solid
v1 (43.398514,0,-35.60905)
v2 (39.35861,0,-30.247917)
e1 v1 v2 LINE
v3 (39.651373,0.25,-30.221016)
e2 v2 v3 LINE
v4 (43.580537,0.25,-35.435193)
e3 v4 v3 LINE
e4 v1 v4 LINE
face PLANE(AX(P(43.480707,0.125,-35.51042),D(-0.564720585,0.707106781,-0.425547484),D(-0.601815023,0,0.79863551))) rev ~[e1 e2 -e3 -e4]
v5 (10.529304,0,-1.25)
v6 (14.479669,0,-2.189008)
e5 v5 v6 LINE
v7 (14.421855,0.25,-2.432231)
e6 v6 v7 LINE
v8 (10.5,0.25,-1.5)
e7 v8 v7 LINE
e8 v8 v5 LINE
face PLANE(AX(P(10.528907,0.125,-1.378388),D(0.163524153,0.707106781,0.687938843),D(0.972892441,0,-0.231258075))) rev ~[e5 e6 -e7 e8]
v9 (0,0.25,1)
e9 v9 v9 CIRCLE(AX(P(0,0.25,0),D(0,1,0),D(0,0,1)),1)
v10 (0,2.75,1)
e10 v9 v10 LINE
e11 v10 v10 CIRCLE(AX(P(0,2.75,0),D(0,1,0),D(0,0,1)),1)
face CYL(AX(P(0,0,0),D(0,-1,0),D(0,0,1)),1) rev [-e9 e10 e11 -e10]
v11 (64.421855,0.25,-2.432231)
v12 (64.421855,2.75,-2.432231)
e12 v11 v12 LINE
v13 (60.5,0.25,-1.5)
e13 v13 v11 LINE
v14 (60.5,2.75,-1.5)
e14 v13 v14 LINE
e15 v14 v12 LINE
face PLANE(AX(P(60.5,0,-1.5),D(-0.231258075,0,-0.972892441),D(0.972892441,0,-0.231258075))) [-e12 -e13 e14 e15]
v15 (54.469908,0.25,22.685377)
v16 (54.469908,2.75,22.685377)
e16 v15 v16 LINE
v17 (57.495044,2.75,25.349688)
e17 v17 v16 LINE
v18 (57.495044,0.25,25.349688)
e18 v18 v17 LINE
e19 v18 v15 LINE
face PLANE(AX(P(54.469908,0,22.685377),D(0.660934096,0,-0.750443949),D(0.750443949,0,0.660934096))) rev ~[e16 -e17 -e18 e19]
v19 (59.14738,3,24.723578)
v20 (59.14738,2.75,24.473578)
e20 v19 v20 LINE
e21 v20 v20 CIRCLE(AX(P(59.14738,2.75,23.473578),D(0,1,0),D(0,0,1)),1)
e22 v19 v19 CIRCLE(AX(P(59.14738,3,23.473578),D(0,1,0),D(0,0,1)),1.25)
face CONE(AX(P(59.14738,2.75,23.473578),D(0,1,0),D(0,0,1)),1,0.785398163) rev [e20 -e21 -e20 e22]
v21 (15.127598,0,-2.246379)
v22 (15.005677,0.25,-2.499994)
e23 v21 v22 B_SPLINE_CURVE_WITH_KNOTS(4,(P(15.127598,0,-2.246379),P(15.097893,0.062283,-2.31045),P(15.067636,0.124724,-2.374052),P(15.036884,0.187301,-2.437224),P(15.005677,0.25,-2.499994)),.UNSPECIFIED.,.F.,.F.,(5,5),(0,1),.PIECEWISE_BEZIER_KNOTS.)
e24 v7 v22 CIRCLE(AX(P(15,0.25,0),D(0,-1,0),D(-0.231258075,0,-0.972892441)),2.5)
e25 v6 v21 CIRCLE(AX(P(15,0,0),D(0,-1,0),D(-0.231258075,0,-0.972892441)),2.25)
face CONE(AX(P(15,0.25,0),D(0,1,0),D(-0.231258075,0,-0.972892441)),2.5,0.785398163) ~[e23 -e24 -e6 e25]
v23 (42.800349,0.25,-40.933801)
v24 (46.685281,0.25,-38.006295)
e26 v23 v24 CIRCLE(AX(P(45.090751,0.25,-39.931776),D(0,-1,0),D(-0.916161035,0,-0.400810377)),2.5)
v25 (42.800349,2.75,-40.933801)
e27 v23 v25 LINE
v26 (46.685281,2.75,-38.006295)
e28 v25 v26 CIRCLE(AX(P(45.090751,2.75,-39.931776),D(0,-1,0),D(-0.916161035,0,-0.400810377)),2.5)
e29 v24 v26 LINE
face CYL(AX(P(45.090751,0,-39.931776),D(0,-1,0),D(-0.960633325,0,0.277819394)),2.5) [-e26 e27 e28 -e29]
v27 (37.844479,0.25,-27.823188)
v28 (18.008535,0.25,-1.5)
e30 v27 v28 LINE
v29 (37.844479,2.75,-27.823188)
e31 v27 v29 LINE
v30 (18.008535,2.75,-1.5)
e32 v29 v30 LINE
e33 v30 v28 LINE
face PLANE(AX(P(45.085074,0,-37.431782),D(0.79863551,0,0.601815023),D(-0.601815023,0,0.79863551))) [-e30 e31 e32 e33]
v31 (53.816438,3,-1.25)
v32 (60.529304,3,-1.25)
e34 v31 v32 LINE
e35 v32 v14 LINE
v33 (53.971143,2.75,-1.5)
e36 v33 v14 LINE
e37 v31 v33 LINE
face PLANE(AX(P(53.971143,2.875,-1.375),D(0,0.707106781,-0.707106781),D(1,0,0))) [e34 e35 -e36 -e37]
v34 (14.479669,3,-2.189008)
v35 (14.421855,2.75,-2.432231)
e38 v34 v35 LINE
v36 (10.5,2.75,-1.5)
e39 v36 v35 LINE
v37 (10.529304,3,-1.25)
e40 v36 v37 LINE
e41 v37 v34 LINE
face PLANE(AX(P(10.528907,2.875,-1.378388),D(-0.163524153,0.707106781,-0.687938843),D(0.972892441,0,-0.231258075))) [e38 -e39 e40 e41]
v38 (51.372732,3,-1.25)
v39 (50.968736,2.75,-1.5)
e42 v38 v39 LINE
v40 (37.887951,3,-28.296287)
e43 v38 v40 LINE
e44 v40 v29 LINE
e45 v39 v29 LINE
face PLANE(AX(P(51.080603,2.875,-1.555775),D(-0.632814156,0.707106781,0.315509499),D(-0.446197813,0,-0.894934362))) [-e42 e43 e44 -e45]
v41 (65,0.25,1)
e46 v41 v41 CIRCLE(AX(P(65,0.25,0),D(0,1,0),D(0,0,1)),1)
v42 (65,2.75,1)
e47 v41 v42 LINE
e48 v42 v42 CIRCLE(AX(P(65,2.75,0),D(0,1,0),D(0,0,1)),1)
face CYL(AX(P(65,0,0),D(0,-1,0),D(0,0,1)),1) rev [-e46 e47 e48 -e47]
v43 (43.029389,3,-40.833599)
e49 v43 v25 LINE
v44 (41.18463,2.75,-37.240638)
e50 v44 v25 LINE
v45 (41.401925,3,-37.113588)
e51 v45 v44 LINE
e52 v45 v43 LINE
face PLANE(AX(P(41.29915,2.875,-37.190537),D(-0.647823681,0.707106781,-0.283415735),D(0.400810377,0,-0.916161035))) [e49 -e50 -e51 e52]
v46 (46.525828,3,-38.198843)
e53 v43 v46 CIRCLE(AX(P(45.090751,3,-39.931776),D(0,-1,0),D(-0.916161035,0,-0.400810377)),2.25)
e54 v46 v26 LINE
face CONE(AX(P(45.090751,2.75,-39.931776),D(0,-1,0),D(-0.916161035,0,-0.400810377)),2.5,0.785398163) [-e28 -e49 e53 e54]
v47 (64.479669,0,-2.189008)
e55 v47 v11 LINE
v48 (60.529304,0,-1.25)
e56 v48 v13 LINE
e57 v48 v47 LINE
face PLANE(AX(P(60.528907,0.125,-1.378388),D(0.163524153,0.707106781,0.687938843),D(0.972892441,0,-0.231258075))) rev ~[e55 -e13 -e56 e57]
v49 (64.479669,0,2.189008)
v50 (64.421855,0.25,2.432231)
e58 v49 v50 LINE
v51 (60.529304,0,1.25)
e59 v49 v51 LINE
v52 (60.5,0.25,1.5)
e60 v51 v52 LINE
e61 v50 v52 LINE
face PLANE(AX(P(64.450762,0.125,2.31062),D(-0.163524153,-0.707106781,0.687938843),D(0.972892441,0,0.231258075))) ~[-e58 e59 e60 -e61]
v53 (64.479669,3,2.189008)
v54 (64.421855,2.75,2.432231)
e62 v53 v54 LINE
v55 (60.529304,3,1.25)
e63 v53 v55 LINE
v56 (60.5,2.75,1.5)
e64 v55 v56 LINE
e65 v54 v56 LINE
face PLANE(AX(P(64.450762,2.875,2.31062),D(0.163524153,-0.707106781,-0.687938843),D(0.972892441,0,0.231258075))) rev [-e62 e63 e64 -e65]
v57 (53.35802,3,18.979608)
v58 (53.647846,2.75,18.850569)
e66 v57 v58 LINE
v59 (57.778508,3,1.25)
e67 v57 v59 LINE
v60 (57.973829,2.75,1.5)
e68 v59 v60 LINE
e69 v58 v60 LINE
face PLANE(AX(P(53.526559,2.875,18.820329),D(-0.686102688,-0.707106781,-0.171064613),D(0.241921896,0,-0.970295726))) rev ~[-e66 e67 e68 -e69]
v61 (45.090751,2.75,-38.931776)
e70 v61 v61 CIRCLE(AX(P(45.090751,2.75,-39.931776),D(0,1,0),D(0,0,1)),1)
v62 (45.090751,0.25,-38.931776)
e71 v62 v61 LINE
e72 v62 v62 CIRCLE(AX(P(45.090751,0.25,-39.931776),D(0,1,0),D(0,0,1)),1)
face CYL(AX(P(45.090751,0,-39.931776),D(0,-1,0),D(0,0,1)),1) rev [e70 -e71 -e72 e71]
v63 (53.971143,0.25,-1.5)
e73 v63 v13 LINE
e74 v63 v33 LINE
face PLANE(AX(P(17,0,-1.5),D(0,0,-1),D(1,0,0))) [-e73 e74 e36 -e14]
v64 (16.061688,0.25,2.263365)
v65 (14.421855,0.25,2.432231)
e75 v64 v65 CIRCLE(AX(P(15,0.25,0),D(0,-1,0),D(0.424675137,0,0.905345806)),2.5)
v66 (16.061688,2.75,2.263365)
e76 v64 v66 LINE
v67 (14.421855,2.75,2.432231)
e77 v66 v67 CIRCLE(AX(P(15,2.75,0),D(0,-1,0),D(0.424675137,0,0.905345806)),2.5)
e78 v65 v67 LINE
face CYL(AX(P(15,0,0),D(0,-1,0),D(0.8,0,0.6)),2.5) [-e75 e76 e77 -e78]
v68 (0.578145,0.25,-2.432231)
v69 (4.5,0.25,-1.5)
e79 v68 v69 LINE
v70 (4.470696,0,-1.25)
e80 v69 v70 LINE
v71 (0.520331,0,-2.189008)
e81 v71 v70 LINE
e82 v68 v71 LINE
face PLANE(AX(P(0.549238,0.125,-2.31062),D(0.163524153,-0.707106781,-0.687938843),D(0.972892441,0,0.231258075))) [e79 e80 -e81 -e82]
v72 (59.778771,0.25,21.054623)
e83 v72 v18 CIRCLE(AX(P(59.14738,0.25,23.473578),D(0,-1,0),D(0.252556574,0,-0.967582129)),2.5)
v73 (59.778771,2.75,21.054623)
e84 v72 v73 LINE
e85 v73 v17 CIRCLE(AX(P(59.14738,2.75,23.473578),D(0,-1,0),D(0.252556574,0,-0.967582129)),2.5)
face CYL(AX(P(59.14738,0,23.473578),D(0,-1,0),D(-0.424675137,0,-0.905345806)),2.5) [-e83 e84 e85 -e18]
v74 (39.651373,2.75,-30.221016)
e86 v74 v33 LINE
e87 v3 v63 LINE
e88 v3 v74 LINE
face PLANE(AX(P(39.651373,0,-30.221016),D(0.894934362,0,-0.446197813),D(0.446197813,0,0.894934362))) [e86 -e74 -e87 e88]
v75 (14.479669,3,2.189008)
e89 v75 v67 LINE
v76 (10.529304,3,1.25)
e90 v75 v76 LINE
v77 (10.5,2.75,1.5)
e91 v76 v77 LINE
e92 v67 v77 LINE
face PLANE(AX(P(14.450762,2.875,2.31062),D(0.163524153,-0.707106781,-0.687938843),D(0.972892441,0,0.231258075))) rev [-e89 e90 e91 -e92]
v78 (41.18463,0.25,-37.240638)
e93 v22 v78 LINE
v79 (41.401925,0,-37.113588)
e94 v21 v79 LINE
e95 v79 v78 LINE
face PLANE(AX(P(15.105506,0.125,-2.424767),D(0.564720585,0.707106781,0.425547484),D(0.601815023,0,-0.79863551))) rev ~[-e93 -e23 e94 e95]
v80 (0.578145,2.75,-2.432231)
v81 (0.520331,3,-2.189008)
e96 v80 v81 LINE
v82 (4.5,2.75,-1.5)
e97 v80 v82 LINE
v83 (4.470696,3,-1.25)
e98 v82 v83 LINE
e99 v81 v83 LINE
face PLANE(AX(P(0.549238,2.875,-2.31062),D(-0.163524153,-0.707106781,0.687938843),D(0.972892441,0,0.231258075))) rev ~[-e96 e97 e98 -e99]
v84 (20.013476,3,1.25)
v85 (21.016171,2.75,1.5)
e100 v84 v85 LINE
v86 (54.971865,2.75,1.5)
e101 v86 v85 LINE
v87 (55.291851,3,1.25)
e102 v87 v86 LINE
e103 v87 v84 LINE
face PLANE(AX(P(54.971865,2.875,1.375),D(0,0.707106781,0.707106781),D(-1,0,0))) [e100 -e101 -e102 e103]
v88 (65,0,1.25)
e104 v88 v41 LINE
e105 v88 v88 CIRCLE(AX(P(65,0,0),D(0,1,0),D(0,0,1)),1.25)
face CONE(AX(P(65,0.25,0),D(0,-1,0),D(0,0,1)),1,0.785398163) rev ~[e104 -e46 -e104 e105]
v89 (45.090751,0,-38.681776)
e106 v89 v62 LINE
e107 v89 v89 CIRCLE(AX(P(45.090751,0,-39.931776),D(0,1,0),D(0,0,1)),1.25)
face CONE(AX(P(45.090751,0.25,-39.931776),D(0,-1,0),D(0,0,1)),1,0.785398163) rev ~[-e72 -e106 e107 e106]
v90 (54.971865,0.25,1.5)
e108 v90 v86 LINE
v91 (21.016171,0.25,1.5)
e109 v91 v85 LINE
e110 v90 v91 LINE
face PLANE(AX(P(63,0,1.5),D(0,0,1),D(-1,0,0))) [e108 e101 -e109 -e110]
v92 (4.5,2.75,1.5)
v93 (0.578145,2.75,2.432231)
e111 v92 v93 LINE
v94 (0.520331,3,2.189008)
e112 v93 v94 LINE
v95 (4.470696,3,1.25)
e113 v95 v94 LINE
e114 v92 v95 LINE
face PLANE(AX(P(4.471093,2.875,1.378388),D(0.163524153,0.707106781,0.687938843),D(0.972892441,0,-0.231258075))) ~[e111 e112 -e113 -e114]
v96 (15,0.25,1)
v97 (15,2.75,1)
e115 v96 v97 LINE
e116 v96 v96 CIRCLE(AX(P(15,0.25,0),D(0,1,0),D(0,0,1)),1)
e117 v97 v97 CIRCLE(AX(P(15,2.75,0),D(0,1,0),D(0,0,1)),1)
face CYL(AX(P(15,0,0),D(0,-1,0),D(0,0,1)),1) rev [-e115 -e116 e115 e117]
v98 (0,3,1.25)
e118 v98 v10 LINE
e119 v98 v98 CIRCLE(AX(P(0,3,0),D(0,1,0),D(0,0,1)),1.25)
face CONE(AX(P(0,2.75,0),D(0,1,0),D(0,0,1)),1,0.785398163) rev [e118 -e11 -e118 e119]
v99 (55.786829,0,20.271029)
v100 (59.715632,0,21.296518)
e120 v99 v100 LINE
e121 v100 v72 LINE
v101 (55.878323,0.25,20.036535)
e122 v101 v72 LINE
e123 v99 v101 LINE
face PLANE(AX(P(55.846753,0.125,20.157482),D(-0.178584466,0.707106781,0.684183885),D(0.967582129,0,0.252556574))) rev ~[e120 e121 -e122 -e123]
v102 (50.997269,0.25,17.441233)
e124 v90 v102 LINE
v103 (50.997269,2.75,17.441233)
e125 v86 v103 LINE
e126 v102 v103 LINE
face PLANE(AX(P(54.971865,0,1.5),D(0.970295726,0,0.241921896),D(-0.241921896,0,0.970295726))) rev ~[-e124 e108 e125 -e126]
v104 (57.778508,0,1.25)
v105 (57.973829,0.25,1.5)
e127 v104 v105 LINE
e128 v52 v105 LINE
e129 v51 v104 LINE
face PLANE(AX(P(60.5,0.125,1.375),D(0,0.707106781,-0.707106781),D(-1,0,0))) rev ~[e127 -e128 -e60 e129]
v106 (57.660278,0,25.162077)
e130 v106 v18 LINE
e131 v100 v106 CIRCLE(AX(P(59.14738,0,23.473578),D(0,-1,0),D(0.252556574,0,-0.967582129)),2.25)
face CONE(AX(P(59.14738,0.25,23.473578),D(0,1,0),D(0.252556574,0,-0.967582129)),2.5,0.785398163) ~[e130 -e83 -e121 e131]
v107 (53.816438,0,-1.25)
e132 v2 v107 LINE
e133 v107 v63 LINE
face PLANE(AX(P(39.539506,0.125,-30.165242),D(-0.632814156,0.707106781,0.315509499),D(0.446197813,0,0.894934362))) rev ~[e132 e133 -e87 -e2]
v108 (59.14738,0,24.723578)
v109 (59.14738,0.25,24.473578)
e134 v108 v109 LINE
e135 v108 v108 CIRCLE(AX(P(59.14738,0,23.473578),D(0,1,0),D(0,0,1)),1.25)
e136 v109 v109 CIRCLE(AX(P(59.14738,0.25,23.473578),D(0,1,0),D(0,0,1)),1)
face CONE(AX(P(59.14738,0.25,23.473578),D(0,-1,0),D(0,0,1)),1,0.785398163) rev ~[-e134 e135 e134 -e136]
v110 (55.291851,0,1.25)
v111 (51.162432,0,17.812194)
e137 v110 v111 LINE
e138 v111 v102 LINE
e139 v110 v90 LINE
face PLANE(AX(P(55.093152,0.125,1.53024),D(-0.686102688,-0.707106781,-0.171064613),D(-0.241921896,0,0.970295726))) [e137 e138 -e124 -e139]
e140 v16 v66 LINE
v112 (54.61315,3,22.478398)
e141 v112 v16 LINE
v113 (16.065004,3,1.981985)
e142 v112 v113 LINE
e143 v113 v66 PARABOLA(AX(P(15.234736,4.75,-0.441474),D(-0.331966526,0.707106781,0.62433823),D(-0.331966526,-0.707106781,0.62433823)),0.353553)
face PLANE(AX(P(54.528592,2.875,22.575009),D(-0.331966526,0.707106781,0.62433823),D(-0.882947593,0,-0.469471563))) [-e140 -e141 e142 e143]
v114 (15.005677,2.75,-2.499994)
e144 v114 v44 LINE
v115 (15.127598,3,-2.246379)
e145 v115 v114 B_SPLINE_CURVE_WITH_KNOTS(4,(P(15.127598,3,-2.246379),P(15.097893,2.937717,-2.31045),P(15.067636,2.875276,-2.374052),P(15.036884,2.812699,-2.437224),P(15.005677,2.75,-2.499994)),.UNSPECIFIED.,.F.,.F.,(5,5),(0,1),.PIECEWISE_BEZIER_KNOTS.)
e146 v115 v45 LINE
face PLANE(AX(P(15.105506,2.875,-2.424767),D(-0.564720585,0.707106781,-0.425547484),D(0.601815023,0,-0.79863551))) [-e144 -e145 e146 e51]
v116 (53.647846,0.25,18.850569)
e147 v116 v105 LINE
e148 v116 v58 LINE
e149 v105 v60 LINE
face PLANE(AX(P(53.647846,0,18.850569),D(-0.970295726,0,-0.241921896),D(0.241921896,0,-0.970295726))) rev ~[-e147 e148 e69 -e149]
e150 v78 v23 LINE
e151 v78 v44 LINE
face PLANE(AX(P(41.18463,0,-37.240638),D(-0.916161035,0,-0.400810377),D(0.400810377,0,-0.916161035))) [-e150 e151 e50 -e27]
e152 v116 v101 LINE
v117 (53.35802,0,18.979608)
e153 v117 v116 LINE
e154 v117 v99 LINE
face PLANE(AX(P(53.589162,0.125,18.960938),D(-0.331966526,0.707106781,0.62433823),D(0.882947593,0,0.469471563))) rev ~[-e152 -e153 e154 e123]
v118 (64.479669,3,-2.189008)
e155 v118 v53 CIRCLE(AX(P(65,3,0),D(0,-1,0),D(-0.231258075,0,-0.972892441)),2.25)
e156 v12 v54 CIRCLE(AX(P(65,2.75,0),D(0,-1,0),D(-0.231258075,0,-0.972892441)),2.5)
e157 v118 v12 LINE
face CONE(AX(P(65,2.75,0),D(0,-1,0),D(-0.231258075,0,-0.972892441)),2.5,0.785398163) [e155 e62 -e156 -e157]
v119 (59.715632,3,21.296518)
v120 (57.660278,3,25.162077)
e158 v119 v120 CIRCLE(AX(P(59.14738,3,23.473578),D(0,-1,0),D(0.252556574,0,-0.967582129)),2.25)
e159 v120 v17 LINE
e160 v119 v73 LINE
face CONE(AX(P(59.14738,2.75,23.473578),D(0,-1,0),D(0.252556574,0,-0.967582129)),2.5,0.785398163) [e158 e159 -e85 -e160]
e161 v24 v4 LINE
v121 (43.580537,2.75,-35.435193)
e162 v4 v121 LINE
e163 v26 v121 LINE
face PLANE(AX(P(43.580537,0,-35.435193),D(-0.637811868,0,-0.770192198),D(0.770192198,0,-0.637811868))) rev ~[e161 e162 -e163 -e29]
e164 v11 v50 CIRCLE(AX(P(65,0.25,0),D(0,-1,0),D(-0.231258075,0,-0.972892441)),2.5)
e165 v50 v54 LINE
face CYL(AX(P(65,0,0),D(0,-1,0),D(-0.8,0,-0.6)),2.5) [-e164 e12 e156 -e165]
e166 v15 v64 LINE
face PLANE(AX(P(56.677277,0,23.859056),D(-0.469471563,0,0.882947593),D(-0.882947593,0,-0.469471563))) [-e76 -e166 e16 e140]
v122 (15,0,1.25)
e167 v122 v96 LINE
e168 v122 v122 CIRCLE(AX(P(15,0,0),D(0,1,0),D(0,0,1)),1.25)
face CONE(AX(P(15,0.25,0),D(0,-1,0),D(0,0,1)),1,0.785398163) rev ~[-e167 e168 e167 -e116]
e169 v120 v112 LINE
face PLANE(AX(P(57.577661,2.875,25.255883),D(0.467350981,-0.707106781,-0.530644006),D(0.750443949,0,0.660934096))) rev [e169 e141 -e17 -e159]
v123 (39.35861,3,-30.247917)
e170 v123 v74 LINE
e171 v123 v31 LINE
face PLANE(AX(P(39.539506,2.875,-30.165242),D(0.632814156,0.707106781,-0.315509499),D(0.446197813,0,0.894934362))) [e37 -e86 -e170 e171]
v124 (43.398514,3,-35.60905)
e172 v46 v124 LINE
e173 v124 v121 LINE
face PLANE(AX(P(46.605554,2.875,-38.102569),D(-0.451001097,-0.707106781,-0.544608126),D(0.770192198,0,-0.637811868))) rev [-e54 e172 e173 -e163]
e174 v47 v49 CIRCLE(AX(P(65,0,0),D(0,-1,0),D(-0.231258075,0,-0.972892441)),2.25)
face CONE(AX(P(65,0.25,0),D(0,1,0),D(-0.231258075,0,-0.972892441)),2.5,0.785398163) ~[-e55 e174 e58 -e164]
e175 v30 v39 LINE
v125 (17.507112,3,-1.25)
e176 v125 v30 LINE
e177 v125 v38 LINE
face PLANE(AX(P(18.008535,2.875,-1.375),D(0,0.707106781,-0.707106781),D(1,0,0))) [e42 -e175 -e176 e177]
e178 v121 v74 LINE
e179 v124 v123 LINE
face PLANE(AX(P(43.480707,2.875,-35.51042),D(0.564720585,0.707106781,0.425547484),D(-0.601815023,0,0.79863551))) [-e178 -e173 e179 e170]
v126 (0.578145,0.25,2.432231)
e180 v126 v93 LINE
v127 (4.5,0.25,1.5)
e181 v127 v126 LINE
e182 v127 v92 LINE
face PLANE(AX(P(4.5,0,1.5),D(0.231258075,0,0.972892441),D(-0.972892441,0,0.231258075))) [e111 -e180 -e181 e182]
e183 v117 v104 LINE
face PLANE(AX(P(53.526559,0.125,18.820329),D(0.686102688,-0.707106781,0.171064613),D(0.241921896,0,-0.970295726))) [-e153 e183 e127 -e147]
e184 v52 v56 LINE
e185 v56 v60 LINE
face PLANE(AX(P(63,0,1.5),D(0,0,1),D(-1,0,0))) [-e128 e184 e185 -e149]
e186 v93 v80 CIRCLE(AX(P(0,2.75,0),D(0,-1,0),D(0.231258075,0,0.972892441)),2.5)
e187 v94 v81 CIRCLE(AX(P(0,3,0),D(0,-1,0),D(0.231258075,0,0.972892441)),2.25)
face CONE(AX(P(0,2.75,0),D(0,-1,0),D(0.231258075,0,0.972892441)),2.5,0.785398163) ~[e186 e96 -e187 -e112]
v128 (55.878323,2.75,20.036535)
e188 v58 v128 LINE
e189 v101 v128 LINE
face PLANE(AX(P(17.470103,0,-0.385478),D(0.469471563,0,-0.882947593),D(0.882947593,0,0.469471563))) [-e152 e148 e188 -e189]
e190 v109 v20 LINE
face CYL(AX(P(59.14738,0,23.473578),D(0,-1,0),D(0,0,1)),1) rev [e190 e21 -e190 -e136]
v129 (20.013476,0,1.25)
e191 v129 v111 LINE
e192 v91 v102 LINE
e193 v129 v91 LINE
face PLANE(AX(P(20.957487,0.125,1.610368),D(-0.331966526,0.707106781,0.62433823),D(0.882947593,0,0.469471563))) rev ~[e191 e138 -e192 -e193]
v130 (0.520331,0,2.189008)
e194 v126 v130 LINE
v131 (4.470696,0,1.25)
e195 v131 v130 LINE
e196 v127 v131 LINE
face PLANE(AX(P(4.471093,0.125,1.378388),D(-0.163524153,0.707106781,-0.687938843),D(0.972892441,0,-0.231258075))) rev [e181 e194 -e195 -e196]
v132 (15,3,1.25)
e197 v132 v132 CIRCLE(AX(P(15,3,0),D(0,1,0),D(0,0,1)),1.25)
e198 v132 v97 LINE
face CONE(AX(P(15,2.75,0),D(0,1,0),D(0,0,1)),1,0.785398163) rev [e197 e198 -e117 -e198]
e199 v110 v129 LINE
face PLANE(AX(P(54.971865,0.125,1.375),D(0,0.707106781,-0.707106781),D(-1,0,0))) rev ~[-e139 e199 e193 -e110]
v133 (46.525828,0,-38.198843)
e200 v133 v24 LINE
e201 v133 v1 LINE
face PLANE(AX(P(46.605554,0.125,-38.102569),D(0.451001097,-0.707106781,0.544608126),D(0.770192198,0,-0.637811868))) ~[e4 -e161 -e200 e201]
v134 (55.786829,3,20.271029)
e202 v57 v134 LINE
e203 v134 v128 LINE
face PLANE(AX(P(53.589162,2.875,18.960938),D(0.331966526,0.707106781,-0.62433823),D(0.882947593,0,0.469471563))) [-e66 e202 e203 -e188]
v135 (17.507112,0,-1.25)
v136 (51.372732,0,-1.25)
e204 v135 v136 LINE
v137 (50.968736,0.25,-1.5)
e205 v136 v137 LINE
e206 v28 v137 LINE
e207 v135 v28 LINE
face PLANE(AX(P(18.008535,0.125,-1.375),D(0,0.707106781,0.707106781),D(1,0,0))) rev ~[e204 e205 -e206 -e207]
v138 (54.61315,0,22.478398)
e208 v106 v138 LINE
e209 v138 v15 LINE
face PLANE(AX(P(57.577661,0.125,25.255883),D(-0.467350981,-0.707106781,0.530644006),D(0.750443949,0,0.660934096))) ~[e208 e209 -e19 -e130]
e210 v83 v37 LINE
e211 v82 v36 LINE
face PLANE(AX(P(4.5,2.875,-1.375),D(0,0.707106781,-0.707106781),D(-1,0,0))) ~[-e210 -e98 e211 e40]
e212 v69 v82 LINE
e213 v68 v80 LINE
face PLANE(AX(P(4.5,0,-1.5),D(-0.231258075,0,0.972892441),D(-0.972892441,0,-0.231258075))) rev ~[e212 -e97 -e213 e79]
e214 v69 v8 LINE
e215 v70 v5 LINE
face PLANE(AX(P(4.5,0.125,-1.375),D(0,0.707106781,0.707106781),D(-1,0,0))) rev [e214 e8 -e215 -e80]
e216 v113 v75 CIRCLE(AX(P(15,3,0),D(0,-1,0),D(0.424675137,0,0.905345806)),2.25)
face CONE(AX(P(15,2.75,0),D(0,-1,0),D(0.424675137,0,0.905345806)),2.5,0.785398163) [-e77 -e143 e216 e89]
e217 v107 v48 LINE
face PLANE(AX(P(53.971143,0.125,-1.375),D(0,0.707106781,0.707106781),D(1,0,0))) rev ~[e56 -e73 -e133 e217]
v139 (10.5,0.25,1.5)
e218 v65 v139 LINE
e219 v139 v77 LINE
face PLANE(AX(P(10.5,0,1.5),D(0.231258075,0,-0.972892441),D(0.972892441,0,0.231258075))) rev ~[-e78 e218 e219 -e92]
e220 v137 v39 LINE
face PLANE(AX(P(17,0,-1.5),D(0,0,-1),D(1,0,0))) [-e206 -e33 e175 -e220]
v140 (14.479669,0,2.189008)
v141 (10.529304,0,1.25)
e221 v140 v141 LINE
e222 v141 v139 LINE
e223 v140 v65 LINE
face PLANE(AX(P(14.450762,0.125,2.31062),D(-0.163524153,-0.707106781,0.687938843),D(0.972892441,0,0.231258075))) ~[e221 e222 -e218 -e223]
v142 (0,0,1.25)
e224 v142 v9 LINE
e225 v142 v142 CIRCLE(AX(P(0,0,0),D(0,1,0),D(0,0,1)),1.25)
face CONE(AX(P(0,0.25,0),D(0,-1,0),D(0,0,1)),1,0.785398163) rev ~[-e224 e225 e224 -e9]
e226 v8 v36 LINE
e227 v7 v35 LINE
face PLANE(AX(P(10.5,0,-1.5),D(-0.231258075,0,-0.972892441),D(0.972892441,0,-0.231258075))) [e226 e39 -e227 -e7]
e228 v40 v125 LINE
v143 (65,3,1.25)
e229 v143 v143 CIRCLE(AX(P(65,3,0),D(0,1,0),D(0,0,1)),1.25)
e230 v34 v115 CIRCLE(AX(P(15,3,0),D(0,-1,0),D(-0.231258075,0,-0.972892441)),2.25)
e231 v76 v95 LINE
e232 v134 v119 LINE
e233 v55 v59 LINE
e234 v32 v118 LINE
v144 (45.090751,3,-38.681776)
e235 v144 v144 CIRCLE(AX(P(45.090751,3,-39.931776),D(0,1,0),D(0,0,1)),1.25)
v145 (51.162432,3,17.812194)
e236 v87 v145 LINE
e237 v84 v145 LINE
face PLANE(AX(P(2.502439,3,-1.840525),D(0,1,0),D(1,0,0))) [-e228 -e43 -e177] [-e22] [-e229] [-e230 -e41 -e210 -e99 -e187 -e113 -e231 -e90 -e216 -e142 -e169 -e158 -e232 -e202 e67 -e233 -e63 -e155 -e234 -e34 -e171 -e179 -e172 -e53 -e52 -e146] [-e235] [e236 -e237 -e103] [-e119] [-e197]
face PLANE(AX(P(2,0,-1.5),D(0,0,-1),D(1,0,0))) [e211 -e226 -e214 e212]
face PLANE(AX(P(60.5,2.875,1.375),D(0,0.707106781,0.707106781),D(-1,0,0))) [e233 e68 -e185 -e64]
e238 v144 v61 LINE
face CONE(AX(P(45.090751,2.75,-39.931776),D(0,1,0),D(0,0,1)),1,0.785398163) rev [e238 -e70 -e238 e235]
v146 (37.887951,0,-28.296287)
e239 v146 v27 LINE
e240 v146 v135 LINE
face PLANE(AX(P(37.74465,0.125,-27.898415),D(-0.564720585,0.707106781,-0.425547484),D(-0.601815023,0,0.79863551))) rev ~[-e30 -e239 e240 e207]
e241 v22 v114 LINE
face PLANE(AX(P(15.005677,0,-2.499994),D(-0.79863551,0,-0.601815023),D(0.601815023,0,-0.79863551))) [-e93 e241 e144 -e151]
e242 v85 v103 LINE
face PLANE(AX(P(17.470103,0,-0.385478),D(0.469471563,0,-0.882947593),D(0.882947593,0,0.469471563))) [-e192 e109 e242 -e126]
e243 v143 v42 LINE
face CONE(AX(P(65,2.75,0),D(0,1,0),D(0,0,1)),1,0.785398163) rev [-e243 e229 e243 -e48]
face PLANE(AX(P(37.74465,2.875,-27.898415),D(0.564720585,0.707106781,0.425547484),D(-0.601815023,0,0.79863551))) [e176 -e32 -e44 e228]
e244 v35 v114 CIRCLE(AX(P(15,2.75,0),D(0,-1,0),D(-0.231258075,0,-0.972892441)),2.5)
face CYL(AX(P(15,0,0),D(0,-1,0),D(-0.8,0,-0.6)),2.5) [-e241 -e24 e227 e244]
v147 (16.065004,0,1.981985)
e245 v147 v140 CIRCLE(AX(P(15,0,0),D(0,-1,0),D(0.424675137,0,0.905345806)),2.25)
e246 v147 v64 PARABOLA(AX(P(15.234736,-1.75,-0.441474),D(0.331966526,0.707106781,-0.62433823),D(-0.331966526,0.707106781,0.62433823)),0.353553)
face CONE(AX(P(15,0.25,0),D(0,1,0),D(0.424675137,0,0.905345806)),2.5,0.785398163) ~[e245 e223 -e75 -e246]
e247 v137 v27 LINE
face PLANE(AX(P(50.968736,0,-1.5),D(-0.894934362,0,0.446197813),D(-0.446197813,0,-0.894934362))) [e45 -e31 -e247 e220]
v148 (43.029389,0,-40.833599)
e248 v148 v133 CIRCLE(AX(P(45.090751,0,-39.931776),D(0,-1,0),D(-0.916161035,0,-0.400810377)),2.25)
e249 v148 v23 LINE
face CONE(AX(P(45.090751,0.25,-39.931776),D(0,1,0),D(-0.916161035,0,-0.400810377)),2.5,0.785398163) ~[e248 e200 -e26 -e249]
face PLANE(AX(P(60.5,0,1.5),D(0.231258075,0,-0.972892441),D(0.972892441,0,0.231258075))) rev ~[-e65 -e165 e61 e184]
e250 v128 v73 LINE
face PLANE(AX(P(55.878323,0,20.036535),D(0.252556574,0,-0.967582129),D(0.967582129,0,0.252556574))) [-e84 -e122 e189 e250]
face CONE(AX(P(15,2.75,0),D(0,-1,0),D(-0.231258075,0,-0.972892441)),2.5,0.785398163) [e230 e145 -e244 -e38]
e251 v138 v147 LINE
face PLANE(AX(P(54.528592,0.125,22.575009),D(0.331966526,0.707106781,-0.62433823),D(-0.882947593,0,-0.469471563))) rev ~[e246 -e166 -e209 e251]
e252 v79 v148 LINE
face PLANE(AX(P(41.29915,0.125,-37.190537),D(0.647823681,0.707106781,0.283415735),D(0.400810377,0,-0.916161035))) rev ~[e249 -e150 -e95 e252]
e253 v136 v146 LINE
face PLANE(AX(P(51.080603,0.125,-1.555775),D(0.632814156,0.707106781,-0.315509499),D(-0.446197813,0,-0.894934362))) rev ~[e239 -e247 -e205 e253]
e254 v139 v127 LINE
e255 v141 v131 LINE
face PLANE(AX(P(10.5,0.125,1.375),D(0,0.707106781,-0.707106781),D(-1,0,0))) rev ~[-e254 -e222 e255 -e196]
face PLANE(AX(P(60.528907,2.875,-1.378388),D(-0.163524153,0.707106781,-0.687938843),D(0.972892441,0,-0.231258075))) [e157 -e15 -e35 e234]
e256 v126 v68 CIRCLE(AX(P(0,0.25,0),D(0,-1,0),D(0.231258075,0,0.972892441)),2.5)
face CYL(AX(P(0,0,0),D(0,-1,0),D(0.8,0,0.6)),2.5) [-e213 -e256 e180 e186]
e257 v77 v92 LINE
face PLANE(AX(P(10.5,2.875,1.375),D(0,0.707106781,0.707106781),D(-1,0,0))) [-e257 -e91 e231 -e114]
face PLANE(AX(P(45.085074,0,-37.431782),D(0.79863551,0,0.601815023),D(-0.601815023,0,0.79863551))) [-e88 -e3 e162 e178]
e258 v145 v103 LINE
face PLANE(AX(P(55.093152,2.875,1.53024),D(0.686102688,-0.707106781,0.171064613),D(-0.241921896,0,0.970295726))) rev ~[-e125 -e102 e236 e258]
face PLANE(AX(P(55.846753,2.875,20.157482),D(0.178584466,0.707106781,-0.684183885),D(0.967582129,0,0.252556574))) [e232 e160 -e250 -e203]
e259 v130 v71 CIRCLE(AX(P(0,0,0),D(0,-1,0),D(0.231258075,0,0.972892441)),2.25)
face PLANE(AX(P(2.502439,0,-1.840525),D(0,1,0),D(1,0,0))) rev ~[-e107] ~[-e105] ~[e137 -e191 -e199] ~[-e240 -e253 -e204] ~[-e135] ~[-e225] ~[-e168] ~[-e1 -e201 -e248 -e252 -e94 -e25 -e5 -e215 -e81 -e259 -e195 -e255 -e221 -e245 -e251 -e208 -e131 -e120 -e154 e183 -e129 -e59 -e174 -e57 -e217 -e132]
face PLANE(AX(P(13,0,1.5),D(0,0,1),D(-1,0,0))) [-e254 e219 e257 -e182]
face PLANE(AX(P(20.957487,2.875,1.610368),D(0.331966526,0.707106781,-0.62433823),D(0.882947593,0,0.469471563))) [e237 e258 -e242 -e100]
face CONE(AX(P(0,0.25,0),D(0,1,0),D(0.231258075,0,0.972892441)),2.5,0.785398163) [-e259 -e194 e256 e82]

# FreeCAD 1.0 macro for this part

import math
import FreeCAD as App
import Part
import Sketcher
from FreeCAD import Vector
Q = App.Units.Quantity


def edges_at(feature, points):
    """Names of the edges that pass closest to the given points."""
    edges = feature.Shape.Edges
    near = lambda p: min(range(len(edges)), key=lambda i: edges[i].distToShape(Part.Vertex(*p))[0])
    return sorted({f"Edge{near(p) + 1}" for p in points})

doc = App.newDocument("Part")
params = doc.addObject("Spreadsheet::Sheet", "Params")
for row, (alias, value) in enumerate([
    ("sketch1_diameter", "2 mm"),
    ("sketch1_radius", "2.5 mm"),
    ("sketch1_width", "11 mm"),
    ("sketch1_width2", "46 mm"),
    ("pad1_length", "3 mm"),
    ("sketch2_diameter", "2 mm"),
    ("sketch2_radius", "2.5 mm"),
    ("sketch2_length", "46 mm"),
    ("pad2_length", "3 mm"),
    ("pad3_length", "3 mm"),
    ("pad4_length", "3 mm"),
    ("sketch5_radius", "2.5 mm"),
    ("sketch5_width", "2.5 mm"),
    ("sketch5_length", "2.5 mm"),
    ("pad5_length", "3 mm"),
    ("chamfer_size", "0.25 mm"),
], start=1):
    params.set(f"A{row}", alias)
    params.set(f"B{row}", "=" + value)
    params.setAlias(f"B{row}", alias)

body = doc.addObject("PartDesign::Body", "Body")

# Sketch on XZ plane
sketch1 = body.newObject("Sketcher::SketchObject", "Sketch")
sketch1.AttachmentSupport = (doc.getObject("XZ_Plane"), [""])
sketch1.MapMode = "FlatFace"
sketch1.addGeometry([
    Part.LineSegment(Vector(13, -1.5, 0), Vector(2, -1.5, 0)),  # 0
    Part.ArcOfCircle(Part.Circle(Vector(0, 0, 0), Vector(0, 0, 1), 2.5), math.radians(37), math.radians(323)),  # 1
    Part.LineSegment(Vector(2, 1.5, 0), Vector(13, 1.5, 0)),  # 2
    Part.ArcOfCircle(Part.Circle(Vector(15, 0, 0), Vector(0, 0, 1), 2.5), math.radians(37), math.radians(143)),  # 3
    Part.LineSegment(Vector(17, 1.5, 0), Vector(63, 1.5, 0)),  # 4
    Part.ArcOfCircle(Part.Circle(Vector(65, 0, 0), Vector(0, 0, 1), 2.5), math.radians(-143), math.radians(143)),  # 5
    Part.LineSegment(Vector(63, -1.5, 0), Vector(17, -1.5, 0)),  # 6
    Part.ArcOfCircle(Part.Circle(Vector(15, 0, 0), Vector(0, 0, 1), 2.5), math.radians(-143), math.radians(-37)),  # 7
    Part.Circle(Vector(65, 0, 0), Vector(0, 0, 1), 1),  # 8
    Part.Circle(Vector(15, 0, 0), Vector(0, 0, 1), 1),  # 9
    Part.Circle(Vector(0, 0, 0), Vector(0, 0, 1), 1),  # 10
], False)
sketch1.addConstraint([
    Sketcher.Constraint("Coincident", 0, 2, 1, 2),
    Sketcher.Constraint("Coincident", 1, 1, 2, 1),
    Sketcher.Constraint("Coincident", 2, 2, 3, 2),
    Sketcher.Constraint("Coincident", 3, 1, 4, 1),
    Sketcher.Constraint("Coincident", 4, 2, 5, 2),
    Sketcher.Constraint("Coincident", 5, 1, 6, 1),
    Sketcher.Constraint("Coincident", 6, 2, 7, 2),
    Sketcher.Constraint("Coincident", 7, 1, 0, 1),
    Sketcher.Constraint("Horizontal", 0),
    Sketcher.Constraint("Horizontal", 2),
    Sketcher.Constraint("Horizontal", 4),
    Sketcher.Constraint("Horizontal", 6),
    Sketcher.Constraint("Coincident", 1, 3, -1, 1),
    Sketcher.Constraint("Coincident", 10, 3, -1, 1),
    Sketcher.Constraint("Coincident", 7, 3, 3, 3),
    Sketcher.Constraint("Coincident", 8, 3, 5, 3),
    Sketcher.Constraint("Coincident", 9, 3, 3, 3),
    Sketcher.Constraint("Equal", 1, 3),
    Sketcher.Constraint("Equal", 3, 5),
    Sketcher.Constraint("Equal", 5, 7),
    Sketcher.Constraint("Equal", 8, 9),
    Sketcher.Constraint("Equal", 9, 10),
    Sketcher.Constraint("Symmetric", 4, 2, 5, 1, -1),
    Sketcher.Constraint("Symmetric", 2, 2, 7, 1, -1),
    Sketcher.Constraint("Horizontal", 2, 2, 3, 1),
    Sketcher.Constraint("Diameter", 8, Q("2 mm")),
    Sketcher.Constraint("Radius", 1, Q("2.5 mm")),
    Sketcher.Constraint("DistanceX", 0, 2, 0, 1, Q("11 mm")),
    Sketcher.Constraint("DistanceX", 4, 1, 4, 2, Q("46 mm")),
    Sketcher.Constraint("DistanceX", -1, 1, 3, 3, Q("15 mm")),
])
sketch1.setExpression("Constraints[25]", "Params.sketch1_diameter")
sketch1.setExpression("Constraints[26]", "Params.sketch1_radius")
sketch1.setExpression("Constraints[27]", "Params.sketch1_width")
sketch1.setExpression("Constraints[28]", "Params.sketch1_width2")
pad1 = body.newObject("PartDesign::Pad", "Pad")
pad1.Profile = sketch1
pad1.setExpression("Length", "Params.pad1_length")
pad1.Reversed = True

# Sketch on XZ plane
sketch2 = body.newObject("Sketcher::SketchObject", "Sketch001")
sketch2.AttachmentSupport = (doc.getObject("XZ_Plane"), [""])
sketch2.MapMode = "FlatFace"
sketch2.addGeometry([
    Part.LineSegment(Vector(42.69, -39.24, 0), Vector(15.01, -2.5, 0)),  # 0
    Part.ArcOfCircle(Part.Circle(Vector(15, 0, 0), Vector(0, 0, 1), 2.5), math.radians(65), math.radians(270)),  # 1
    Part.LineSegment(Vector(16.06, 2.26, 0), Vector(56.68, 23.86, 0)),  # 2
    Part.ArcOfCircle(Part.Circle(Vector(59.15, 23.47, 0), Vector(0, 0, 1), 2.5), math.radians(-115), math.radians(171)),  # 3
    Part.LineSegment(Vector(58.09, 21.21, 0), Vector(17.47, -0.39, 0)),  # 4
    Part.ArcOfCircle(Part.Circle(Vector(15, 0, 0), Vector(0, 0, 1), 2.5), math.radians(-16.13), math.radians(-8.87)),  # 5
    Part.LineSegment(Vector(17.4, -0.69, 0), Vector(45.09, -37.43, 0)),  # 6
    Part.ArcOfCircle(Part.Circle(Vector(45.09, -39.93, 0), Vector(0, 0, 1), 2.5), math.radians(164), math.radians(450)),  # 7
    Part.Circle(Vector(59.15, 23.47, 0), Vector(0, 0, 1), 1),  # 8
    Part.Circle(Vector(15, 0, 0), Vector(0, 0, 1), 1),  # 9
    Part.Circle(Vector(45.09, -39.93, 0), Vector(0, 0, 1), 1),  # 10
], False)
sketch2.addConstraint([
    Sketcher.Constraint("Coincident", 0, 2, 1, 2),
    Sketcher.Constraint("Coincident", 1, 1, 2, 1),
    Sketcher.Constraint("Coincident", 2, 2, 3, 2),
    Sketcher.Constraint("Coincident", 3, 1, 4, 1),
    Sketcher.Constraint("Coincident", 4, 2, 5, 2),
    Sketcher.Constraint("Coincident", 5, 1, 6, 1),
    Sketcher.Constraint("Coincident", 6, 2, 7, 2),
    Sketcher.Constraint("Coincident", 7, 1, 0, 1),
    Sketcher.Constraint("Coincident", 5, 3, 1, 3),
    Sketcher.Constraint("Coincident", 8, 3, 3, 3),
    Sketcher.Constraint("Coincident", 9, 3, 1, 3),
    Sketcher.Constraint("Coincident", 10, 3, 7, 3),
    Sketcher.Constraint("Equal", 1, 3),
    Sketcher.Constraint("Equal", 3, 5),
    Sketcher.Constraint("Equal", 5, 7),
    Sketcher.Constraint("Equal", 8, 9),
    Sketcher.Constraint("Equal", 9, 10),
    Sketcher.Constraint("PointOnObject", 1, 3, -1),
    Sketcher.Constraint("Parallel", 2, 4),
    Sketcher.Constraint("Parallel", 0, 6),
    Sketcher.Constraint("Equal", 0, 2),
    Sketcher.Constraint("Equal", 2, 4),
    Sketcher.Constraint("Equal", 4, 6),
    Sketcher.Constraint("Diameter", 8, Q("2 mm")),
    Sketcher.Constraint("Radius", 1, Q("2.5 mm")),
    Sketcher.Constraint("Angle", 0, Q("127 deg")),
    Sketcher.Constraint("Angle", 2, Q("28 deg")),
    Sketcher.Constraint("Distance", 0, Q("46 mm")),
    Sketcher.Constraint("DistanceX", -1, 1, 1, 3, Q("15 mm")),
    Sketcher.Constraint("DistanceX", -1, 1, 3, 3, Q("59.14738 mm")),
    Sketcher.Constraint("DistanceY", -1, 1, 3, 3, Q("23.473578 mm")),
    Sketcher.Constraint("DistanceX", -1, 1, 7, 3, Q("45.090751 mm")),
    Sketcher.Constraint("DistanceY", 5, 1, -1, 1, Q("0.694548 mm")),
])
sketch2.setExpression("Constraints[23]", "Params.sketch2_diameter")
sketch2.setExpression("Constraints[24]", "Params.sketch2_radius")
sketch2.setExpression("Constraints[27]", "Params.sketch2_length")
pad2 = body.newObject("PartDesign::Pad", "Pad001")
pad2.Profile = sketch2
pad2.setExpression("Length", "Params.pad2_length")
pad2.Reversed = True

# Sketch on XZ plane
sketch3 = body.newObject("Sketcher::SketchObject", "Sketch002")
sketch3.AttachmentSupport = (doc.getObject("XZ_Plane"), [""])
sketch3.MapMode = "FlatFace"
sketch3.addGeometry([
    Part.LineSegment(Vector(37.8, -27.8, 0), Vector(51, -1.5, 0)),
    Part.LineSegment(Vector(51, -1.5, 0), Vector(54, -1.5, 0)),
    Part.LineSegment(Vector(54, -1.5, 0), Vector(39.7, -30.2, 0)),
    Part.LineSegment(Vector(39.7, -30.2, 0), Vector(37.8, -27.8, 0)),
], False)
sketch3.addConstraint([
    Sketcher.Constraint("Coincident", 0, 2, 1, 1),
    Sketcher.Constraint("Coincident", 1, 2, 2, 1),
    Sketcher.Constraint("Coincident", 2, 2, 3, 1),
    Sketcher.Constraint("Coincident", 3, 2, 0, 1),
    Sketcher.Constraint("Horizontal", 1),
    Sketcher.Constraint("Parallel", 0, 2),
    Sketcher.Constraint("Angle", 3, Q("127 deg")),
    Sketcher.Constraint("Angle", 0, Q("63.5 deg")),
    Sketcher.Constraint("DistanceY", 0, 2, -1, 1, Q("1.5 mm")),
    Sketcher.Constraint("Distance", 0, Q("29.41354 mm")),
    Sketcher.Constraint("DistanceX", 1, 1, 1, 2, Q("3.002407 mm")),
    Sketcher.Constraint("DistanceX", -1, 1, 3, 2, Q("37.844479 mm")),
])
pad3 = body.newObject("PartDesign::Pad", "Pad002")
pad3.Profile = sketch3
pad3.setExpression("Length", "Params.pad3_length")
pad3.Reversed = True

# Sketch on XZ plane
sketch4 = body.newObject("Sketcher::SketchObject", "Sketch003")
sketch4.AttachmentSupport = (doc.getObject("XZ_Plane"), [""])
sketch4.MapMode = "FlatFace"
sketch4.addGeometry([
    Part.LineSegment(Vector(55, 1.5, 0), Vector(51, 17.4, 0)),
    Part.LineSegment(Vector(51, 17.4, 0), Vector(53.6, 18.9, 0)),
    Part.LineSegment(Vector(53.6, 18.9, 0), Vector(58, 1.5, 0)),
    Part.LineSegment(Vector(58, 1.5, 0), Vector(55, 1.5, 0)),
], False)
sketch4.addConstraint([
    Sketcher.Constraint("Coincident", 0, 2, 1, 1),
    Sketcher.Constraint("Coincident", 1, 2, 2, 1),
    Sketcher.Constraint("Coincident", 2, 2, 3, 1),
    Sketcher.Constraint("Coincident", 3, 2, 0, 1),
    Sketcher.Constraint("Horizontal", 3),
    Sketcher.Constraint("Parallel", 0, 2),
    Sketcher.Constraint("Angle", 0, Q("104 deg")),
    Sketcher.Constraint("Angle", 1, Q("28 deg")),
    Sketcher.Constraint("DistanceY", -1, 1, 2, 2, Q("1.5 mm")),
    Sketcher.Constraint("Distance", 0, Q("16.429252 mm")),
    Sketcher.Constraint("DistanceX", 3, 2, 3, 1, Q("3.001964 mm")),
    Sketcher.Constraint("DistanceX", -1, 1, 0, 2, Q("50.997269 mm")),
])
pad4 = body.newObject("PartDesign::Pad", "Pad003")
pad4.Profile = sketch4
pad4.setExpression("Length", "Params.pad4_length")
pad4.Reversed = True

# Sketch on XZ plane
sketch5 = body.newObject("Sketcher::SketchObject", "Sketch004")
sketch5.AttachmentSupport = (doc.getObject("XZ_Plane"), [""])
sketch5.MapMode = "FlatFace"
sketch5.addGeometry([
    Part.LineSegment(Vector(4.5, -1.5, 0), Vector(0.6, -2.4, 0)),  # 0
    Part.ArcOfCircle(Part.Circle(Vector(0, 0, 0), Vector(0, 0, 1), 2.5), math.radians(-77), math.radians(-37)),  # 1
    Part.LineSegment(Vector(2, -1.5, 0), Vector(4.5, -1.5, 0)),  # 2
    Part.LineSegment(Vector(0.6, 2.4, 0), Vector(4.5, 1.5, 0)),  # 3
    Part.LineSegment(Vector(4.5, 1.5, 0), Vector(2, 1.5, 0)),  # 4
    Part.ArcOfCircle(Part.Circle(Vector(0, 0, 0), Vector(0, 0, 1), 2.5), math.radians(37), math.radians(77)),  # 5
    Part.LineSegment(Vector(14.4, -2.4, 0), Vector(10.5, -1.5, 0)),  # 6
    Part.LineSegment(Vector(10.5, -1.5, 0), Vector(13, -1.5, 0)),  # 7
    Part.ArcOfCircle(Part.Circle(Vector(15, 0, 0), Vector(0, 0, 1), 2.5), math.radians(-143), math.radians(-103)),  # 8
    Part.LineSegment(Vector(10.5, 1.5, 0), Vector(14.4, 2.4, 0)),  # 9
    Part.ArcOfCircle(Part.Circle(Vector(15, 0, 0), Vector(0, 0, 1), 2.5), math.radians(103), math.radians(143)),  # 10
    Part.LineSegment(Vector(13, 1.5, 0), Vector(10.5, 1.5, 0)),  # 11
    Part.LineSegment(Vector(42.8, -40.9, 0), Vector(41.2, -37.2, 0)),  # 12
    Part.LineSegment(Vector(41.2, -37.2, 0), Vector(42.7, -39.2, 0)),  # 13
    Part.ArcOfCircle(Part.Circle(Vector(45.1, -39.9, 0), Vector(0, 0, 1), 2.5), math.radians(164), math.radians(204)),  # 14
    Part.LineSegment(Vector(43.6, -35.4, 0), Vector(46.7, -38, 0)),  # 15
    Part.ArcOfCircle(Part.Circle(Vector(45.1, -39.9, 0), Vector(0, 0, 1), 2.5), math.radians(50), math.radians(90)),  # 16
    Part.LineSegment(Vector(45.1, -37.4, 0), Vector(43.6, -35.4, 0)),  # 17
    Part.LineSegment(Vector(60.5, 1.5, 0), Vector(64.4, 2.4, 0)),  # 18
    Part.ArcOfCircle(Part.Circle(Vector(65, 0, 0), Vector(0, 0, 1), 2.5), math.radians(103), math.radians(143)),  # 19
    Part.LineSegment(Vector(63, 1.5, 0), Vector(60.5, 1.5, 0)),  # 20
    Part.LineSegment(Vector(64.4, -2.4, 0), Vector(60.5, -1.5, 0)),  # 21
    Part.LineSegment(Vector(60.5, -1.5, 0), Vector(63, -1.5, 0)),  # 22
    Part.ArcOfCircle(Part.Circle(Vector(65, 0, 0), Vector(0, 0, 1), 2.5), math.radians(-143), math.radians(-103)),  # 23
    Part.LineSegment(Vector(59.8, 21.1, 0), Vector(55.9, 20, 0)),  # 24
    Part.LineSegment(Vector(55.9, 20, 0), Vector(58.1, 21.2, 0)),  # 25
    Part.ArcOfCircle(Part.Circle(Vector(59.1, 23.5, 0), Vector(0, 0, 1), 2.5), math.radians(-115), math.radians(-75)),  # 26
    Part.LineSegment(Vector(54.5, 22.7, 0), Vector(57.5, 25.3, 0)),  # 27
    Part.ArcOfCircle(Part.Circle(Vector(59.1, 23.5, 0), Vector(0, 0, 1), 2.5), math.radians(131), math.radians(171)),  # 28
    Part.LineSegment(Vector(56.7, 23.9, 0), Vector(54.5, 22.7, 0)),  # 29
], False)
sketch5.addConstraint([
    Sketcher.Constraint("Tangent", 0, 2, 1, 1),
    Sketcher.Constraint("Coincident", 1, 2, 2, 1),
    Sketcher.Constraint("Coincident", 2, 2, 0, 1),
    Sketcher.Constraint("Coincident", 3, 2, 4, 1),
    Sketcher.Constraint("Coincident", 4, 2, 5, 1),
    Sketcher.Constraint("Tangent", 5, 2, 3, 1),
    Sketcher.Constraint("Coincident", 6, 2, 7, 1),
    Sketcher.Constraint("Coincident", 7, 2, 8, 1),
    Sketcher.Constraint("Tangent", 8, 2, 6, 1),
    Sketcher.Constraint("Tangent", 9, 2, 10, 1),
    Sketcher.Constraint("Coincident", 10, 2, 11, 1),
    Sketcher.Constraint("Coincident", 11, 2, 9, 1),
    Sketcher.Constraint("Coincident", 12, 2, 13, 1),
    Sketcher.Constraint("Coincident", 13, 2, 14, 1),
    Sketcher.Constraint("Tangent", 14, 2, 12, 1),
    Sketcher.Constraint("Tangent", 15, 2, 16, 1),
    Sketcher.Constraint("Coincident", 16, 2, 17, 1),
    Sketcher.Constraint("Coincident", 17, 2, 15, 1),
    Sketcher.Constraint("Tangent", 18, 2, 19, 1),
    Sketcher.Constraint("Coincident", 19, 2, 20, 1),
    Sketcher.Constraint("Coincident", 20, 2, 18, 1),
    Sketcher.Constraint("Coincident", 21, 2, 22, 1),
    Sketcher.Constraint("Coincident", 22, 2, 23, 1),
    Sketcher.Constraint("Tangent", 23, 2, 21, 1),
    Sketcher.Constraint("Coincident", 24, 2, 25, 1),
    Sketcher.Constraint("Coincident", 25, 2, 26, 1),
    Sketcher.Constraint("Tangent", 26, 2, 24, 1),
    Sketcher.Constraint("Tangent", 27, 2, 28, 1),
    Sketcher.Constraint("Coincident", 28, 2, 29, 1),
    Sketcher.Constraint("Coincident", 29, 2, 27, 1),
    Sketcher.Constraint("Horizontal", 2),
    Sketcher.Constraint("Horizontal", 4),
    Sketcher.Constraint("Horizontal", 7),
    Sketcher.Constraint("Horizontal", 11),
    Sketcher.Constraint("Horizontal", 20),
    Sketcher.Constraint("Horizontal", 22),
    Sketcher.Constraint("Coincident", 1, 3, -1, 1),
    Sketcher.Constraint("Coincident", 5, 3, -1, 1),
    Sketcher.Constraint("Coincident", 10, 3, 8, 3),
    Sketcher.Constraint("Coincident", 16, 3, 14, 3),
    Sketcher.Constraint("Coincident", 23, 3, 19, 3),
    Sketcher.Constraint("Coincident", 28, 3, 26, 3),
    Sketcher.Constraint("Equal", 1, 5),
    Sketcher.Constraint("Equal", 5, 8),
    Sketcher.Constraint("Equal", 8, 10),
    Sketcher.Constraint("Equal", 10, 14),
    Sketcher.Constraint("Equal", 14, 16),
    Sketcher.Constraint("Equal", 16, 19),
    Sketcher.Constraint("Equal", 19, 23),
    Sketcher.Constraint("Equal", 23, 26),
    Sketcher.Constraint("Equal", 26, 28),
    Sketcher.Constraint("Symmetric", 2, 2, 3, 2, -1),
    Sketcher.Constraint("Symmetric", 8, 2, 9, 2, -1),
    Sketcher.Constraint("Symmetric", 20, 2, 21, 2, -1),
    Sketcher.Constraint("PointOnObject", 19, 3, -1),
    Sketcher.Constraint("Parallel", 3, 6),
    Sketcher.Constraint("Parallel", 13, 17),
    Sketcher.Constraint("Parallel", 9, 18),
    Sketcher.Constraint("Parallel", 25, 29),
    Sketcher.Constraint("Horizontal", 2, 2, 6, 2),
    Sketcher.Constraint("Horizontal", 4, 2, 10, 2),
    Sketcher.Constraint("Horizontal", 11, 2, 19, 2),
    Sketcher.Constraint("Equal", 9, 12),
    Sketcher.Constraint("Equal", 12, 15),
    Sketcher.Constraint("Equal", 13, 17),
    Sketcher.Constraint("Equal", 21, 24),
    Sketcher.Constraint("Equal", 17, 25),
    Sketcher.Constraint("Equal", 24, 27),
    Sketcher.Constraint("Equal", 25, 29),
    Sketcher.Constraint("Radius", 1, Q("2.5 mm")),
    Sketcher.Constraint("Angle", 13, Q("-53 deg")),
    Sketcher.Constraint("Angle", 25, Q("28 deg")),
    Sketcher.Constraint("DistanceX", 2, 1, 2, 2, Q("2.5 mm")),
    Sketcher.Constraint("DistanceX", -1, 1, 8, 3, Q("15 mm")),
    Sketcher.Constraint("DistanceX", -1, 1, 19, 3, Q("65 mm")),
    Sketcher.Constraint("DistanceX", -1, 1, 1, 2, Q("2 mm")),
    Sketcher.Constraint("Distance", 13, Q("2.5 mm")),
    Sketcher.Constraint("DistanceY", 14, 2, -1, 1, Q("40.933801 mm")),
    Sketcher.Constraint("DistanceX", -1, 1, 14, 3, Q("45.090751 mm")),
    Sketcher.Constraint("DistanceX", -1, 1, 26, 3, Q("59.14738 mm")),
    Sketcher.Constraint("DistanceY", -1, 1, 26, 3, Q("23.473578 mm")),
])
sketch5.setExpression("Constraints[69]", "Params.sketch5_radius")
sketch5.setExpression("Constraints[72]", "Params.sketch5_width")
sketch5.setExpression("Constraints[76]", "Params.sketch5_length")
pad5 = body.newObject("PartDesign::Pad", "Pad004")
pad5.Profile = sketch5
pad5.setExpression("Length", "Params.pad5_length")
pad5.Reversed = True
doc.recompute()

chamfer = body.newObject("PartDesign::Chamfer", "Chamfer")
chamfer.Base = (pad5, edges_at(pad5, [
    (57.236, 0, -1.5),
    (57.236, 3, -1.5),
    (62.461, 0, -1.966),
    (62.461, 3, -1.966),
    (46.595, 3, -41.928),
    (46.595, 0, -41.928),
    (45.133, 0, -36.721),
    (45.133, 3, -36.721),
    (-2.5, 0, 0),
    (-2.5, 3, 0),
    (2.539, 0, -1.966),
    (2.539, 3, -1.966),
    (28.095, 3, -19.87),
    (28.095, 0, -19.87),
    (41.992, 0, -39.087),
    (41.992, 3, -39.087),
    (7.5, 0, 1.5),
    (7.5, 3, 1.5),
    (2.539, 0, 1.966),
    (2.539, 3, 1.966),
    (7.5, 0, -1.5),
    (7.5, 3, -1.5),
    (12.461, 0, -1.966),
    (12.461, 3, -1.966),
    (15.256, 0, 2.487),
    (15.256, 3, 2.487),
    (12.461, 0, 1.966),
    (12.461, 3, 1.966),
    (61.355, 3, 24.647),
    (61.355, 0, 24.647),
    (55.982, 0, 24.018),
    (55.982, 3, 24.018),
    (54.763, 0, 19.444),
    (54.763, 3, 19.444),
    (57.829, 0, 20.546),
    (57.829, 3, 20.546),
    (67.5, 0, 0),
    (67.5, 3, 0),
    (62.461, 0, 1.966),
    (62.461, 3, 1.966),
    (0, 0, -1),
    (0, 3, -1),
    (15, 0, -1),
    (15, 3, -1),
    (65, 0, -1),
    (65, 3, -1),
    (14.712, 0, -2.483),
    (14.712, 3, -2.483),
    (37.994, 0, 1.5),
    (37.994, 3, 1.5),
    (27.927, 0, -14.662),
    (59.147, 0, 22.474),
    (45.091, 0, -40.932),
    (35.266, 3, 12.474),
    (27.927, 3, -14.662),
    (45.091, 3, -40.932),
    (59.147, 3, 22.474),
    (35.266, 0, 12.474),
    (41.616, 3, -32.828),
    (41.616, 0, -32.828),
    (34.489, 0, -1.5),
    (34.489, 3, -1.5),
    (46.811, 0, -15.861),
    (44.407, 0, -14.662),
    (44.407, 3, -14.662),
    (46.811, 3, -15.861),
    (36.007, 0, 9.471),
    (36.007, 3, 9.471),
    (59.237, 0, 1.5),
    (59.237, 3, 1.5),
    (55.811, 0, 10.175),
    (52.985, 0, 9.471),
    (52.985, 3, 9.471),
    (55.811, 3, 10.175),
]))
chamfer.setExpression("Size", "Params.chamfer_size")

doc.recompute()
